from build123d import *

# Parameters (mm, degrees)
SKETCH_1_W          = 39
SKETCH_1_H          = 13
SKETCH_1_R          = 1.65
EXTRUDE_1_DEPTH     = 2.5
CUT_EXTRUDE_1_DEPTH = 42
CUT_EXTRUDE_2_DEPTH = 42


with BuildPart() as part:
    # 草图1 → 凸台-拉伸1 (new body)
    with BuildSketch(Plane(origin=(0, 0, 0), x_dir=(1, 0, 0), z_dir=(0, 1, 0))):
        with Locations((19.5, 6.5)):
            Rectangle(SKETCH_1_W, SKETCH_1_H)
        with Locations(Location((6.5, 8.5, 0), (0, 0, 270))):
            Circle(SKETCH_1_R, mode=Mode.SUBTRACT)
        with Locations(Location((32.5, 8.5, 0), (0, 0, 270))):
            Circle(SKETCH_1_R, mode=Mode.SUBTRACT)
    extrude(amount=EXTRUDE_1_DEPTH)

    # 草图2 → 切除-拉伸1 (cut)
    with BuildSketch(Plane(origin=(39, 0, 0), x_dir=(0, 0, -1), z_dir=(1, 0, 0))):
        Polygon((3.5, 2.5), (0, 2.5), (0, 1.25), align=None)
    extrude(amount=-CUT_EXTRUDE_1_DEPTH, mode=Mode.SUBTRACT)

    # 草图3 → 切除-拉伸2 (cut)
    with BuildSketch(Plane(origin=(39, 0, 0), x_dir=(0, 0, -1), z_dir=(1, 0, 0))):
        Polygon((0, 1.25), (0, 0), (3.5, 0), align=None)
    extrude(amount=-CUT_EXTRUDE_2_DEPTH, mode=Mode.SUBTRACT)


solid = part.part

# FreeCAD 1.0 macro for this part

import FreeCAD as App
import Part
import Sketcher
from FreeCAD import Vector
Q = App.Units.Quantity

doc = App.newDocument("Part")
body = doc.addObject("PartDesign::Body", "Body")

# Sketch on XZ plane
sketch1 = doc.addObject("Sketcher::SketchObject", "Sketch")
body.addObject(sketch1)
sketch1.AttachmentSupport = (doc.XZ_Plane, [""])
sketch1.MapMode = "FlatFace"
sketch1.addGeometry(Part.LineSegment(Vector(0, -13, 0), Vector(0, 0, 0)), False)
sketch1.addGeometry(Part.LineSegment(Vector(0, 0, 0), Vector(39, 0, 0)), False)
sketch1.addGeometry(Part.LineSegment(Vector(39, 0, 0), Vector(39, -13, 0)), False)
sketch1.addGeometry(Part.LineSegment(Vector(39, -13, 0), Vector(0, -13, 0)), False)
sketch1.addGeometry(Part.Circle(Vector(6.5, -8.5, 0), Vector(0, 0, 1), 1.65), False)
sketch1.addGeometry(Part.Circle(Vector(32.5, -8.5, 0), Vector(0, 0, 1), 1.65), False)
sketch1.addConstraint(Sketcher.Constraint("Coincident", 0, 2, 1, 1))
sketch1.addConstraint(Sketcher.Constraint("Coincident", 1, 2, 2, 1))
sketch1.addConstraint(Sketcher.Constraint("Coincident", 2, 2, 3, 1))
sketch1.addConstraint(Sketcher.Constraint("Coincident", 3, 2, 0, 1))
sketch1.addConstraint(Sketcher.Constraint("Vertical", 0))
sketch1.addConstraint(Sketcher.Constraint("Horizontal", 1))
sketch1.addConstraint(Sketcher.Constraint("Vertical", 2))
sketch1.addConstraint(Sketcher.Constraint("Horizontal", 3))
sketch1.addConstraint(Sketcher.Constraint("Coincident", 0, 2, -1, 1))
sketch1.addConstraint(Sketcher.Constraint("Equal", 4, 5))
sketch1.addConstraint(Sketcher.Constraint("Horizontal", 4, 3, 5, 3))
sketch1.addConstraint(Sketcher.Constraint("Diameter", 4, Q("3.3 mm")))
sketch1.addConstraint(Sketcher.Constraint("DistanceX", 1, 1, 1, 2, Q("39 mm")))
sketch1.addConstraint(Sketcher.Constraint("DistanceY", 0, 1, 0, 2, Q("13 mm")))
sketch1.addConstraint(Sketcher.Constraint("DistanceX", 4, 3, 5, 3, Q("26 mm")))
sketch1.addConstraint(Sketcher.Constraint("DistanceX", -1, 1, 4, 3, Q("6.5 mm")))
sketch1.addConstraint(Sketcher.Constraint("DistanceY", 4, 3, -1, 1, Q("8.5 mm")))
pad1 = doc.addObject("PartDesign::Pad", "Pad")
body.addObject(pad1)
pad1.Profile = sketch1
pad1.Length = 2.5
pad1.Reversed = True

# Sketch on YZ plane
sketch2 = doc.addObject("Sketcher::SketchObject", "Sketch001")
body.addObject(sketch2)
sketch2.AttachmentSupport = (doc.YZ_Plane, [""])
sketch2.MapMode = "FlatFace"
sketch2.AttachmentOffset = App.Placement(Vector(0, 0, 39), App.Rotation())
sketch2.addGeometry(Part.LineSegment(Vector(2.5, -3.5, 0), Vector(2.5, 0, 0)), False)
sketch2.addGeometry(Part.LineSegment(Vector(2.5, 0, 0), Vector(1.25, 0, 0)), False)
sketch2.addGeometry(Part.LineSegment(Vector(1.25, 0, 0), Vector(2.5, -3.5, 0)), False)
sketch2.addConstraint(Sketcher.Constraint("Coincident", 0, 2, 1, 1))
sketch2.addConstraint(Sketcher.Constraint("Coincident", 1, 2, 2, 1))
sketch2.addConstraint(Sketcher.Constraint("Coincident", 2, 2, 0, 1))
sketch2.addConstraint(Sketcher.Constraint("Vertical", 0))
sketch2.addConstraint(Sketcher.Constraint("Horizontal", 1))
sketch2.addConstraint(Sketcher.Constraint("PointOnObject", 0, 2, -1))
sketch2.addConstraint(Sketcher.Constraint("DistanceY", 0, 1, 0, 2, Q("3.5 mm")))
sketch2.addConstraint(Sketcher.Constraint("DistanceX", 1, 2, 1, 1, Q("1.25 mm")))
sketch2.addConstraint(Sketcher.Constraint("DistanceX", -1, 1, 0, 2, Q("2.5 mm")))
pocket1 = doc.addObject("PartDesign::Pocket", "Pocket")
body.addObject(pocket1)
pocket1.Profile = sketch2
pocket1.Length = 42

# Sketch on YZ plane
sketch3 = doc.addObject("Sketcher::SketchObject", "Sketch002")
body.addObject(sketch3)
sketch3.AttachmentSupport = (doc.YZ_Plane, [""])
sketch3.MapMode = "FlatFace"
sketch3.AttachmentOffset = App.Placement(Vector(0, 0, 39), App.Rotation())
sketch3.addGeometry(Part.LineSegment(Vector(1.25, 0, 0), Vector(0, 0, 0)), False)
sketch3.addGeometry(Part.LineSegment(Vector(0, 0, 0), Vector(0, -3.5, 0)), False)
sketch3.addGeometry(Part.LineSegment(Vector(0, -3.5, 0), Vector(1.25, 0, 0)), False)
sketch3.addConstraint(Sketcher.Constraint("Coincident", 0, 2, 1, 1))
sketch3.addConstraint(Sketcher.Constraint("Coincident", 1, 2, 2, 1))
sketch3.addConstraint(Sketcher.Constraint("Coincident", 2, 2, 0, 1))
sketch3.addConstraint(Sketcher.Constraint("Horizontal", 0))
sketch3.addConstraint(Sketcher.Constraint("Vertical", 1))
sketch3.addConstraint(Sketcher.Constraint("Coincident", 0, 2, -1, 1))
sketch3.addConstraint(Sketcher.Constraint("DistanceY", 1, 2, 1, 1, Q("3.5 mm")))
sketch3.addConstraint(Sketcher.Constraint("DistanceX", 0, 2, 0, 1, Q("1.25 mm")))
pocket2 = doc.addObject("PartDesign::Pocket", "Pocket001")
body.addObject(pocket2)
pocket2.Profile = sketch3
pocket2.Length = 42

doc.recompute()
